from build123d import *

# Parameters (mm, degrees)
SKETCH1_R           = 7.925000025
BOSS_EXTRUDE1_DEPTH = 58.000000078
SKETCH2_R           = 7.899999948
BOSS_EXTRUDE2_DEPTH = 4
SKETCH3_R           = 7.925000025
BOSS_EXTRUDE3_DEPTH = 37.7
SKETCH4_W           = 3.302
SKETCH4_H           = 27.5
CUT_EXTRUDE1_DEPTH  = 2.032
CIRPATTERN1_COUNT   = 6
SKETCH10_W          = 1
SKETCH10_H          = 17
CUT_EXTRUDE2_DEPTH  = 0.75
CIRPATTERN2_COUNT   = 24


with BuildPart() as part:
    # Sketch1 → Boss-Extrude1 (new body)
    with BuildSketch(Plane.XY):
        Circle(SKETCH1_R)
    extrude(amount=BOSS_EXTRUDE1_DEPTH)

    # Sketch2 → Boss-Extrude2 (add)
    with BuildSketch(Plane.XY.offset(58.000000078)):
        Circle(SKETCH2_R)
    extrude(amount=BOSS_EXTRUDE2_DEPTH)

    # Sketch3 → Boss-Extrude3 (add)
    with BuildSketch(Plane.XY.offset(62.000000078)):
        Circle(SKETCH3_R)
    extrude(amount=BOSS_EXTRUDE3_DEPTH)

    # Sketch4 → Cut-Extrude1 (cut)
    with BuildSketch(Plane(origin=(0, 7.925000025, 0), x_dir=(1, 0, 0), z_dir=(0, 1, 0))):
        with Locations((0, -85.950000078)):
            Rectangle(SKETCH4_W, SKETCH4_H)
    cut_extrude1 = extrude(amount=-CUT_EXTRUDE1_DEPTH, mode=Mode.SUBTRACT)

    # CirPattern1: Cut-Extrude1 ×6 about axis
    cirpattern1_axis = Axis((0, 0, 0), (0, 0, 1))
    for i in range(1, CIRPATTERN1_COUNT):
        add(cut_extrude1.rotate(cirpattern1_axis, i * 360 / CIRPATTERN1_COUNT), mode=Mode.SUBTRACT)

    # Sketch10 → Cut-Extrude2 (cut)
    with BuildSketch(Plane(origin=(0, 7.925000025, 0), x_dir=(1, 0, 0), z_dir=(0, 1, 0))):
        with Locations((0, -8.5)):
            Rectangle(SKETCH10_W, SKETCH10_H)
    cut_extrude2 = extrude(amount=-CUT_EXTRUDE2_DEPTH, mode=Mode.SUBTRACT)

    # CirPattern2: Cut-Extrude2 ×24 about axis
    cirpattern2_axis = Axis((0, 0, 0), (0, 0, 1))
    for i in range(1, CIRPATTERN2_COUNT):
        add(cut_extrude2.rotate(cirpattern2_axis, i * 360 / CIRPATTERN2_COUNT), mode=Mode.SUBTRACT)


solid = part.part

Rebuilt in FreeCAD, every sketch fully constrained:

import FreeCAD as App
import Part
import Sketcher
Q = App.Units.Quantity

doc = App.newDocument("Part")
params = doc.addObject("Spreadsheet::Sheet", "Params")
for row, (alias, value) in enumerate([
    ("sketch1_diameter", "15.85 mm"),
    ("pad1_length", "58 mm"),
    ("sketch2_diameter", "15.8 mm"),
    ("pad2_length", "4 mm"),
    ("sketch3_diameter", "15.85 mm"),
    ("pad3_length", "37.7 mm"),
    ("sketch4_height", "27.5 mm"),
    ("pocket1_length", "2.032 mm"),
    ("sketch5_width", "1 mm"),
    ("sketch5_height", "17 mm"),
    ("pocket2_length", "0.75 mm"),
], start=1):
    params.set(f"A{row}", alias)
    params.set(f"B{row}", "=" + value)
    params.setAlias(f"B{row}", alias)

body = doc.addObject("PartDesign::Body", "Body")

# Sketch on XY plane
sketch1 = body.newObject("Sketcher::SketchObject", "Sketch")
sketch1.AttachmentSupport = (doc.getObject("XY_Plane"), [""])
sketch1.MapMode = "FlatFace"
sketch1.addGeometry(Part.Circle(App.Vector(0, 0, 0), App.Vector(0, 0, 1), 8), False)
sketch1.addConstraint([
    Sketcher.Constraint("Coincident", 0, 3, -1, 1),
    Sketcher.Constraint("Diameter", 0, Q("15.85 mm")),
])
sketch1.setExpression("Constraints[1]", "Params.sketch1_diameter")
pad1 = body.newObject("PartDesign::Pad", "Pad")
pad1.Profile = sketch1
pad1.setExpression("Length", "Params.pad1_length")

# Sketch on XY plane
sketch2 = body.newObject("Sketcher::SketchObject", "Sketch001")
sketch2.AttachmentSupport = (doc.getObject("XY_Plane"), [""])
sketch2.MapMode = "FlatFace"
sketch2.AttachmentOffset = App.Placement(App.Vector(0, 0, 58), App.Rotation())
sketch2.addGeometry(Part.Circle(App.Vector(0, 0, 0), App.Vector(0, 0, 1), 8), False)
sketch2.addConstraint([
    Sketcher.Constraint("Coincident", 0, 3, -1, 1),
    Sketcher.Constraint("Diameter", 0, Q("15.8 mm")),
])
sketch2.setExpression("Constraints[1]", "Params.sketch2_diameter")
pad2 = body.newObject("PartDesign::Pad", "Pad001")
pad2.Profile = sketch2
pad2.setExpression("Length", "Params.pad2_length")

# Sketch on XY plane
sketch3 = body.newObject("Sketcher::SketchObject", "Sketch002")
sketch3.AttachmentSupport = (doc.getObject("XY_Plane"), [""])
sketch3.MapMode = "FlatFace"
sketch3.AttachmentOffset = App.Placement(App.Vector(0, 0, 62), App.Rotation())
sketch3.addGeometry(Part.Circle(App.Vector(0, 0, 0), App.Vector(0, 0, 1), 8), False)
sketch3.addConstraint([
    Sketcher.Constraint("Coincident", 0, 3, -1, 1),
    Sketcher.Constraint("Diameter", 0, Q("15.85 mm")),
])
sketch3.setExpression("Constraints[1]", "Params.sketch3_diameter")
pad3 = body.newObject("PartDesign::Pad", "Pad002")
pad3.Profile = sketch3
pad3.setExpression("Length", "Params.pad3_length")

# Sketch on XZ plane
sketch4 = body.newObject("Sketcher::SketchObject", "Sketch003")
sketch4.AttachmentSupport = (doc.getObject("XZ_Plane"), [""])
sketch4.MapMode = "FlatFace"
sketch4.AttachmentOffset = App.Placement(App.Vector(0, 0, -7.925), App.Rotation())
sketch4.addGeometry([
    Part.LineSegment(App.Vector(-1.7, 72.2, 0), App.Vector(-1.7, 99.7, 0)),
    Part.LineSegment(App.Vector(-1.7, 99.7, 0), App.Vector(1.7, 99.7, 0)),
    Part.LineSegment(App.Vector(1.7, 99.7, 0), App.Vector(1.7, 72.2, 0)),
    Part.LineSegment(App.Vector(1.7, 72.2, 0), App.Vector(-1.7, 72.2, 0)),
], False)
sketch4.addConstraint([
    Sketcher.Constraint("Coincident", 0, 2, 1, 1),
    Sketcher.Constraint("Coincident", 1, 2, 2, 1),
    Sketcher.Constraint("Coincident", 2, 2, 3, 1),
    Sketcher.Constraint("Coincident", 3, 2, 0, 1),
    Sketcher.Constraint("Vertical", 0),
    Sketcher.Constraint("Horizontal", 1),
    Sketcher.Constraint("Vertical", 2),
    Sketcher.Constraint("Horizontal", 3),
    Sketcher.Constraint("DistanceY", 0, 1, 0, 2, Q("27.5 mm")),
    Sketcher.Constraint("DistanceY", -1, 1, 0, 2, Q("99.7 mm")),
    Sketcher.Constraint("DistanceX", 1, 1, 1, 2, Q("3.302 mm")),
    Sketcher.Constraint("DistanceX", 0, 2, -1, 1, Q("1.651 mm")),
])
sketch4.setExpression("Constraints[8]", "Params.sketch4_height")
pocket1 = body.newObject("PartDesign::Pocket", "Pocket")
pocket1.Profile = sketch4
pocket1.setExpression("Length", "Params.pocket1_length")
pocket1.Reversed = True
doc.recompute()

polarpattern = body.newObject("PartDesign::PolarPattern", "PolarPattern")
polarpattern.Originals = [pocket1]
polarpattern.Axis = (doc.getObject("Z_Axis"), [""])
polarpattern.Angle = 360
polarpattern.Occurrences = 6
body.Tip = polarpattern

# Sketch on XZ plane
sketch5 = body.newObject("Sketcher::SketchObject", "Sketch004")
sketch5.AttachmentSupport = (doc.getObject("XZ_Plane"), [""])
sketch5.MapMode = "FlatFace"
sketch5.AttachmentOffset = App.Placement(App.Vector(0, 0, -7.925), App.Rotation())
sketch5.addGeometry([
    Part.LineSegment(App.Vector(-0.5, 0, 0), App.Vector(-0.5, 17, 0)),
    Part.LineSegment(App.Vector(-0.5, 17, 0), App.Vector(0.5, 17, 0)),
    Part.LineSegment(App.Vector(0.5, 17, 0), App.Vector(0.5, 0, 0)),
    Part.LineSegment(App.Vector(0.5, 0, 0), App.Vector(-0.5, 0, 0)),
], False)
sketch5.addConstraint([
    Sketcher.Constraint("Coincident", 0, 2, 1, 1),
    Sketcher.Constraint("Coincident", 1, 2, 2, 1),
    Sketcher.Constraint("Coincident", 2, 2, 3, 1),
    Sketcher.Constraint("Coincident", 3, 2, 0, 1),
    Sketcher.Constraint("Vertical", 0),
    Sketcher.Constraint("Horizontal", 1),
    Sketcher.Constraint("Vertical", 2),
    Sketcher.Constraint("Horizontal", 3),
    Sketcher.Constraint("Symmetric", 2, 2, 3, 2, -1, 1),
    Sketcher.Constraint("DistanceX", 1, 1, 1, 2, Q("1 mm")),
    Sketcher.Constraint("DistanceY", 0, 1, 0, 2, Q("17 mm")),
])
sketch5.setExpression("Constraints[9]", "Params.sketch5_width")
sketch5.setExpression("Constraints[10]", "Params.sketch5_height")
pocket2 = body.newObject("PartDesign::Pocket", "Pocket001")
pocket2.Profile = sketch5
pocket2.setExpression("Length", "Params.pocket2_length")
pocket2.Reversed = True
doc.recompute()

polarpattern2 = body.newObject("PartDesign::PolarPattern", "PolarPattern001")
polarpattern2.Originals = [pocket2]
polarpattern2.Axis = (doc.getObject("Z_Axis"), [""])
polarpattern2.Angle = 360
polarpattern2.Occurrences = 24
body.Tip = polarpattern2

doc.recompute()
